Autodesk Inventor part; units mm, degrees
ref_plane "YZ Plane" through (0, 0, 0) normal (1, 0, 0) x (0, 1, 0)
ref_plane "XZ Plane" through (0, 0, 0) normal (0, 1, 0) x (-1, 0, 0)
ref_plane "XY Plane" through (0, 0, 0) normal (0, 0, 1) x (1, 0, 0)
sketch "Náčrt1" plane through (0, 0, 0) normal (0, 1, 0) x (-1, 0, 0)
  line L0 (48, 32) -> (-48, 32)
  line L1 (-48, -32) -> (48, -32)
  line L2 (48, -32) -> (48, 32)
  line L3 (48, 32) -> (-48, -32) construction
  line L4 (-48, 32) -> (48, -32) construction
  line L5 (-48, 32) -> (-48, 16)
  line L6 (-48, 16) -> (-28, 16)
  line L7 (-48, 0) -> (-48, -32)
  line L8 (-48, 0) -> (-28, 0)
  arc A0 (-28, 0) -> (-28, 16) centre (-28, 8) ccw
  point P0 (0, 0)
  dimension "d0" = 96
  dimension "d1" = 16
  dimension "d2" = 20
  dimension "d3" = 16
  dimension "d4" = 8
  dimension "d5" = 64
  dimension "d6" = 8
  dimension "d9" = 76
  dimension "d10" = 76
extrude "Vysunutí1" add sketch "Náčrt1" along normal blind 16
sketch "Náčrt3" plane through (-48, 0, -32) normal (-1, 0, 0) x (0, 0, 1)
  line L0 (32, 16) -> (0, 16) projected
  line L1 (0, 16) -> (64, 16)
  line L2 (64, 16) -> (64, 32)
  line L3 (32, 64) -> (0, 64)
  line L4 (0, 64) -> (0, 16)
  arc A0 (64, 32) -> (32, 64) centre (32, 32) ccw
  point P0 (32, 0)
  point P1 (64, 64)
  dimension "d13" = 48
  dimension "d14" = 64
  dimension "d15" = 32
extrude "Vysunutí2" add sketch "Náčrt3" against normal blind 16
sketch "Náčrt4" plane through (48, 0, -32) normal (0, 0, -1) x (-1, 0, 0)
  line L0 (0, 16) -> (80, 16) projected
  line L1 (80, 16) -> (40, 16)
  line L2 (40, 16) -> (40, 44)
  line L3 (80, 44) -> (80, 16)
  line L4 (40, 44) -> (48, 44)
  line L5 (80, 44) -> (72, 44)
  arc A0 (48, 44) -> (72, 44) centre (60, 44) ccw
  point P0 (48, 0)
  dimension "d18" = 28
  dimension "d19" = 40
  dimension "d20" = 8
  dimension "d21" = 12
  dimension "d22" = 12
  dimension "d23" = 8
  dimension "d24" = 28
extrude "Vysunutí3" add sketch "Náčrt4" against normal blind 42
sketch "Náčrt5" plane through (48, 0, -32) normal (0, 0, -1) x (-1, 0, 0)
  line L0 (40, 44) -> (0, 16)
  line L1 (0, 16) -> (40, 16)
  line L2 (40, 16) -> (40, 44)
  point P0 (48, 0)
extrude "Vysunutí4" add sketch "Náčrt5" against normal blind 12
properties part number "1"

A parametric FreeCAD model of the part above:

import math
import FreeCAD as App
import Part
import Sketcher

V = App.Vector
Q = App.Units.Quantity


def add_polygon(sketch, points):
    """Adds a closed chain of lines whose ends are joined by coincident constraints."""
    first, n = sketch.GeometryCount, len(points)
    for a, b in zip(points, points[1:] + points[:1]):
        sketch.addGeometry(Part.LineSegment(App.Vector(*a, 0), App.Vector(*b, 0)), False)
    for i in range(n):
        sketch.addConstraint(Sketcher.Constraint("Coincident", first + i, 2, first + (i + 1) % n, 1))

doc = App.newDocument("Part")
body = doc.addObject("PartDesign::Body", "Body")

sketch1 = body.newObject("Sketcher::SketchObject", "Sketch")
sketch1.AttachmentSupport = (doc.getObject("XZ_Plane"), [""])
sketch1.MapMode = "FlatFace"
sketch1.addGeometry([
    Part.LineSegment(V(-48, -32, 0), V(-48, 32, 0)),
    Part.LineSegment(V(-48, 32, 0), V(48, 32, 0)),
    Part.LineSegment(V(48, 32, 0), V(48, 16, 0)),
    Part.LineSegment(V(48, 16, 0), V(28, 16, 0)),
    Part.ArcOfCircle(Part.Circle(V(28, 8, 0), V(0, 0, 1), 8), math.radians(90), math.radians(270)),
    Part.LineSegment(V(28, 0, 0), V(48, 0, 0)),
    Part.LineSegment(V(48, 0, 0), V(48, -32, 0)),
    Part.LineSegment(V(48, -32, 0), V(-48, -32, 0)),
], False)
sketch1.addConstraint([
    Sketcher.Constraint("Coincident", 0, 2, 1, 1),
    Sketcher.Constraint("Coincident", 1, 2, 2, 1),
    Sketcher.Constraint("Coincident", 2, 2, 3, 1),
    Sketcher.Constraint("Tangent", 3, 2, 4, 1),
    Sketcher.Constraint("Tangent", 4, 2, 5, 1),
    Sketcher.Constraint("Coincident", 5, 2, 6, 1),
    Sketcher.Constraint("Coincident", 6, 2, 7, 1),
    Sketcher.Constraint("Coincident", 7, 2, 0, 1),
    Sketcher.Constraint("Vertical", 0),
    Sketcher.Constraint("Horizontal", 1),
    Sketcher.Constraint("Vertical", 2),
    Sketcher.Constraint("Horizontal", 3),
    Sketcher.Constraint("Horizontal", 5),
    Sketcher.Constraint("Vertical", 6),
    Sketcher.Constraint("Horizontal", 7),
    Sketcher.Constraint("Symmetric", 0, 2, 6, 2, -1, 1),
    Sketcher.Constraint("PointOnObject", 4, 2, -1),
    Sketcher.Constraint("Vertical", 2, 2, 5, 2),
    Sketcher.Constraint("Radius", 4, Q("8 mm")),
    Sketcher.Constraint("DistanceX", 1, 1, 1, 2, Q("96 mm")),
    Sketcher.Constraint("DistanceX", 3, 2, 3, 1, Q("20 mm")),
    Sketcher.Constraint("DistanceY", 0, 1, 0, 2, Q("64 mm")),
])
pad1 = body.newObject("PartDesign::Pad", "Pad")
pad1.Profile = sketch1
pad1.Length = 16
pad1.Reversed = True

sketch2 = body.newObject("Sketcher::SketchObject", "Sketch001")
sketch2.AttachmentSupport = (doc.getObject("YZ_Plane"), [""])
sketch2.MapMode = "FlatFace"
sketch2.AttachmentOffset = App.Placement(V(0, 0, -48), App.Rotation())
sketch2.addGeometry([
    Part.LineSegment(V(16, -32, 0), V(16, 32, 0)),
    Part.LineSegment(V(16, 32, 0), V(32, 32, 0)),
    Part.ArcOfCircle(Part.Circle(V(32, 0, 0), V(0, 0, 1), 32), math.radians(0), math.radians(90)),
    Part.LineSegment(V(64, 0, 0), V(64, -32, 0)),
    Part.LineSegment(V(64, -32, 0), V(16, -32, 0)),
], False)
sketch2.addConstraint([
    Sketcher.Constraint("Coincident", 0, 2, 1, 1),
    Sketcher.Constraint("Tangent", 1, 2, 2, 2),
    Sketcher.Constraint("Tangent", 2, 1, 3, 1),
    Sketcher.Constraint("Coincident", 3, 2, 4, 1),
    Sketcher.Constraint("Coincident", 4, 2, 0, 1),
    Sketcher.Constraint("Vertical", 0),
    Sketcher.Constraint("Horizontal", 1),
    Sketcher.Constraint("Vertical", 3),
    Sketcher.Constraint("Horizontal", 4),
    Sketcher.Constraint("PointOnObject", 2, 3, -1),
    Sketcher.Constraint("Radius", 2, Q("32 mm")),
    Sketcher.Constraint("DistanceX", 4, 2, 4, 1, Q("48 mm")),
    Sketcher.Constraint("DistanceY", 0, 1, 0, 2, Q("64 mm")),
    Sketcher.Constraint("DistanceX", -1, 1, 2, 3, Q("32 mm")),
])
pad2 = body.newObject("PartDesign::Pad", "Pad001")
pad2.Profile = sketch2
pad2.Length = 16

sketch3 = body.newObject("Sketcher::SketchObject", "Sketch002")
sketch3.AttachmentSupport = (doc.getObject("XY_Plane"), [""])
sketch3.MapMode = "FlatFace"
sketch3.AttachmentOffset = App.Placement(V(0, 0, -32), App.Rotation())
sketch3.addGeometry([
    Part.LineSegment(V(8, 44, 0), V(8, 16, 0)),
    Part.LineSegment(V(8, 16, 0), V(-32, 16, 0)),
    Part.LineSegment(V(-32, 16, 0), V(-32, 44, 0)),
    Part.LineSegment(V(-32, 44, 0), V(-24, 44, 0)),
    Part.ArcOfCircle(Part.Circle(V(-12, 44, 0), V(0, 0, 1), 12), math.radians(180), math.radians(360)),
    Part.LineSegment(V(0, 44, 0), V(8, 44, 0)),
], False)
sketch3.addConstraint([
    Sketcher.Constraint("Coincident", 0, 2, 1, 1),
    Sketcher.Constraint("Coincident", 1, 2, 2, 1),
    Sketcher.Constraint("Coincident", 2, 2, 3, 1),
    Sketcher.Constraint("Coincident", 3, 2, 4, 1),
    Sketcher.Constraint("Coincident", 4, 2, 5, 1),
    Sketcher.Constraint("Coincident", 5, 2, 0, 1),
    Sketcher.Constraint("Vertical", 0),
    Sketcher.Constraint("Horizontal", 1),
    Sketcher.Constraint("Vertical", 2),
    Sketcher.Constraint("Horizontal", 3),
    Sketcher.Constraint("Horizontal", 5),
    Sketcher.Constraint("PointOnObject", 4, 2, -2),
    Sketcher.Constraint("Horizontal", 4, 3, 2, 2),
    Sketcher.Constraint("Horizontal", 3, 2, 4, 2),
    Sketcher.Constraint("Equal", 3, 5),
    Sketcher.Constraint("Radius", 4, Q("12 mm")),
    Sketcher.Constraint("DistanceX", 1, 2, 1, 1, Q("40 mm")),
    Sketcher.Constraint("DistanceY", 0, 2, 0, 1, Q("28 mm")),
    Sketcher.Constraint("DistanceY", -1, 1, 4, 3, Q("44 mm")),
])
pad3 = body.newObject("PartDesign::Pad", "Pad002")
pad3.Profile = sketch3
pad3.Length = 42

sketch4 = body.newObject("Sketcher::SketchObject", "Sketch003")
sketch4.AttachmentSupport = (doc.getObject("XY_Plane"), [""])
sketch4.MapMode = "FlatFace"
sketch4.AttachmentOffset = App.Placement(V(0, 0, -32), App.Rotation())
add_polygon(sketch4, [(8, 16), (8, 44), (48, 16)])
sketch4.addConstraint([
    Sketcher.Constraint("Vertical", 0),
    Sketcher.Constraint("Horizontal", 2),
    Sketcher.Constraint("DistanceX", 2, 2, 2, 1, Q("40 mm")),
    Sketcher.Constraint("DistanceY", 0, 1, 0, 2, Q("28 mm")),
    Sketcher.Constraint("DistanceX", -1, 1, 0, 2, Q("8 mm")),
    Sketcher.Constraint("DistanceY", -1, 1, 0, 2, Q("44 mm")),
])
pad4 = body.newObject("PartDesign::Pad", "Pad003")
pad4.Profile = sketch4
pad4.Length = 12

doc.recompute()
